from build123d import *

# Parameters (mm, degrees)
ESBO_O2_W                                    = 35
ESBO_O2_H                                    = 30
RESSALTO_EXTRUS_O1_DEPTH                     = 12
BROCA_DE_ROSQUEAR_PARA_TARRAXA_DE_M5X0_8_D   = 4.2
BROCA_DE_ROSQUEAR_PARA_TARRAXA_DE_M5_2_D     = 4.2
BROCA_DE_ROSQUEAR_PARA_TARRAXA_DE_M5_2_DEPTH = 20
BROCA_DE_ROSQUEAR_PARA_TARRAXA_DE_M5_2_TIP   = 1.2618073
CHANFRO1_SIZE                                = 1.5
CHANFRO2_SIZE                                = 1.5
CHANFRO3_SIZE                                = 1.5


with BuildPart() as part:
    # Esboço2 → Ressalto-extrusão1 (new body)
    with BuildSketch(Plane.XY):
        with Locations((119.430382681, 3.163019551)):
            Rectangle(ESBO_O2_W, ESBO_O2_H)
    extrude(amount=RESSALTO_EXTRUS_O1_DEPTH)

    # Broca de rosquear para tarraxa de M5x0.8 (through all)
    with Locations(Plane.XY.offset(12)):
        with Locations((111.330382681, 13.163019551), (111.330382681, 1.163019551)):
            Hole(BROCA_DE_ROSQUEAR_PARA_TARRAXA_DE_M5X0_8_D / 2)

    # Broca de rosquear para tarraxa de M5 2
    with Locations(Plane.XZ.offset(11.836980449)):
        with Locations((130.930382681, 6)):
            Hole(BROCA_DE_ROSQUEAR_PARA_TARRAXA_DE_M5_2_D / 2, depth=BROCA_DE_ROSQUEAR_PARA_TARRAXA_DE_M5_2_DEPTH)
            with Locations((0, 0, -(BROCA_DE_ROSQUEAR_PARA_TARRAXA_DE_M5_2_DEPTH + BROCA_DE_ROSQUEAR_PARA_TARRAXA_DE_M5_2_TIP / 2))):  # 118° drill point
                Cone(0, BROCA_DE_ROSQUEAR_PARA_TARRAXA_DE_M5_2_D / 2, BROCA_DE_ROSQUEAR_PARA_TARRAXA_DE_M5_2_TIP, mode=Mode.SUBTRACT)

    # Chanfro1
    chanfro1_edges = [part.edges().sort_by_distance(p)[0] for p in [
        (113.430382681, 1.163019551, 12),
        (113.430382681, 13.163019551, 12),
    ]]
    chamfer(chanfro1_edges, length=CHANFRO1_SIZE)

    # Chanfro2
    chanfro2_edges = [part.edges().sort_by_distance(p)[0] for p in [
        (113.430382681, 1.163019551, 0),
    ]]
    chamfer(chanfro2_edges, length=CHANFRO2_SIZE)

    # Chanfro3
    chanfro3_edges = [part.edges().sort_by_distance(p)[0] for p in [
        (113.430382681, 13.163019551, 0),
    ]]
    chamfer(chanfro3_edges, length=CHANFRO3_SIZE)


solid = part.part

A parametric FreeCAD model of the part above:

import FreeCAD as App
import Part
import Sketcher

V = App.Vector
Q = App.Units.Quantity


def edges_at(feature, points):
    """Names of the edges that pass closest to the given points."""
    edges = feature.Shape.Edges
    near = lambda p: min(range(len(edges)), key=lambda i: edges[i].distToShape(Part.Vertex(*p))[0])
    return sorted({f"Edge{near(p) + 1}" for p in points})


def add_polygon(sketch, points):
    """Adds a closed chain of lines whose ends are joined by coincident constraints."""
    first, n = sketch.GeometryCount, len(points)
    for a, b in zip(points, points[1:] + points[:1]):
        sketch.addGeometry(Part.LineSegment(App.Vector(*a, 0), App.Vector(*b, 0)), False)
    for i in range(n):
        sketch.addConstraint(Sketcher.Constraint("Coincident", first + i, 2, first + (i + 1) % n, 1))

doc = App.newDocument("Part")
body = doc.addObject("PartDesign::Body", "Body")

# Sketch on XY plane
sketch1 = doc.addObject("Sketcher::SketchObject", "Sketch")
body.addObject(sketch1)
sketch1.AttachmentSupport = (doc.XY_Plane, [""])
sketch1.MapMode = "FlatFace"
add_polygon(sketch1, [(101.930383, 18.16302), (101.930383, -11.83698), (136.930383, -11.83698), (136.930383, 18.16302)])  # lines 0-3
sketch1.addConstraint(Sketcher.Constraint("Vertical", 0))
sketch1.addConstraint(Sketcher.Constraint("Horizontal", 1))
sketch1.addConstraint(Sketcher.Constraint("Vertical", 2))
sketch1.addConstraint(Sketcher.Constraint("Horizontal", 3))
sketch1.addConstraint(Sketcher.Constraint("DistanceX", 1, 1, 1, 2, Q("35 mm")))
sketch1.addConstraint(Sketcher.Constraint("DistanceY", 0, 2, 0, 1, Q("30 mm")))
sketch1.addConstraint(Sketcher.Constraint("DistanceY", 0, 2, -1, 1, Q("11.83698 mm")))
sketch1.addConstraint(Sketcher.Constraint("DistanceX", -1, 1, 0, 2, Q("101.930383 mm")))
pad1 = doc.addObject("PartDesign::Pad", "Pad")
body.addObject(pad1)
pad1.Profile = sketch1
pad1.Length = 12

# Sketch on XY plane
sketch2 = doc.addObject("Sketcher::SketchObject", "Sketch001")
body.addObject(sketch2)
sketch2.AttachmentSupport = (doc.XY_Plane, [""])
sketch2.MapMode = "FlatFace"
sketch2.AttachmentOffset = App.Placement(V(0, 0, 12), App.Rotation())
sketch2.addGeometry(Part.Circle(V(111.330383, 13.16302, 0), V(0, 0, 1), 2.1), False)
sketch2.addGeometry(Part.Circle(V(111.330383, 1.16302, 0), V(0, 0, 1), 2.1), False)
sketch2.addConstraint(Sketcher.Constraint("Equal", 0, 1))
sketch2.addConstraint(Sketcher.Constraint("Vertical", 0, 3, 1, 3))
sketch2.addConstraint(Sketcher.Constraint("Diameter", 0, Q("4.2 mm")))
sketch2.addConstraint(Sketcher.Constraint("DistanceY", 1, 3, 0, 3, Q("12 mm")))
sketch2.addConstraint(Sketcher.Constraint("DistanceY", -1, 1, 0, 3, Q("13.16302 mm")))
sketch2.addConstraint(Sketcher.Constraint("DistanceX", -1, 1, 0, 3, Q("111.330383 mm")))
doc.recompute()
hole = doc.addObject("PartDesign::Hole", "Hole")
body.addObject(hole)
hole.Profile = sketch2
hole.ThreadType = "None"
hole.Diameter = 4.2
hole.DepthType = "ThroughAll"

# Sketch on XZ plane
sketch3 = doc.addObject("Sketcher::SketchObject", "Sketch002")
body.addObject(sketch3)
sketch3.AttachmentSupport = (doc.XZ_Plane, [""])
sketch3.MapMode = "FlatFace"
sketch3.AttachmentOffset = App.Placement(V(0, 0, 11.83698), App.Rotation())
sketch3.addGeometry(Part.Circle(V(130.930383, 6, 0), V(0, 0, 1), 2.1), False)
sketch3.addConstraint(Sketcher.Constraint("Diameter", 0, Q("4.2 mm")))
sketch3.addConstraint(Sketcher.Constraint("DistanceY", -1, 1, 0, 3, Q("6 mm")))
sketch3.addConstraint(Sketcher.Constraint("DistanceX", -1, 1, 0, 3, Q("130.930383 mm")))
doc.recompute()
hole2 = doc.addObject("PartDesign::Hole", "Hole001")
body.addObject(hole2)
hole2.Profile = sketch3
hole2.ThreadType = "None"
hole2.Diameter = 4.2
hole2.DepthType = "Dimension"
hole2.Depth = 20
hole2.DrillPoint = "Angled"
hole2.DrillPointAngle = 118
doc.recompute()

chamfer = doc.addObject("PartDesign::Chamfer", "Chamfer")
body.addObject(chamfer)
chamfer.Base = (hole2, edges_at(hole2, [(113.43, 1.163, 12), (113.43, 13.163, 12)]))
chamfer.Size = 1.5
doc.recompute()

chamfer2 = doc.addObject("PartDesign::Chamfer", "Chamfer001")
body.addObject(chamfer2)
chamfer2.Base = (chamfer, edges_at(chamfer, [(113.43, 1.163, 0)]))
chamfer2.Size = 1.5
doc.recompute()

chamfer3 = doc.addObject("PartDesign::Chamfer", "Chamfer002")
body.addObject(chamfer3)
chamfer3.Base = (chamfer2, edges_at(chamfer2, [(113.43, 13.163, 0)]))
chamfer3.Size = 1.5

doc.recompute()
